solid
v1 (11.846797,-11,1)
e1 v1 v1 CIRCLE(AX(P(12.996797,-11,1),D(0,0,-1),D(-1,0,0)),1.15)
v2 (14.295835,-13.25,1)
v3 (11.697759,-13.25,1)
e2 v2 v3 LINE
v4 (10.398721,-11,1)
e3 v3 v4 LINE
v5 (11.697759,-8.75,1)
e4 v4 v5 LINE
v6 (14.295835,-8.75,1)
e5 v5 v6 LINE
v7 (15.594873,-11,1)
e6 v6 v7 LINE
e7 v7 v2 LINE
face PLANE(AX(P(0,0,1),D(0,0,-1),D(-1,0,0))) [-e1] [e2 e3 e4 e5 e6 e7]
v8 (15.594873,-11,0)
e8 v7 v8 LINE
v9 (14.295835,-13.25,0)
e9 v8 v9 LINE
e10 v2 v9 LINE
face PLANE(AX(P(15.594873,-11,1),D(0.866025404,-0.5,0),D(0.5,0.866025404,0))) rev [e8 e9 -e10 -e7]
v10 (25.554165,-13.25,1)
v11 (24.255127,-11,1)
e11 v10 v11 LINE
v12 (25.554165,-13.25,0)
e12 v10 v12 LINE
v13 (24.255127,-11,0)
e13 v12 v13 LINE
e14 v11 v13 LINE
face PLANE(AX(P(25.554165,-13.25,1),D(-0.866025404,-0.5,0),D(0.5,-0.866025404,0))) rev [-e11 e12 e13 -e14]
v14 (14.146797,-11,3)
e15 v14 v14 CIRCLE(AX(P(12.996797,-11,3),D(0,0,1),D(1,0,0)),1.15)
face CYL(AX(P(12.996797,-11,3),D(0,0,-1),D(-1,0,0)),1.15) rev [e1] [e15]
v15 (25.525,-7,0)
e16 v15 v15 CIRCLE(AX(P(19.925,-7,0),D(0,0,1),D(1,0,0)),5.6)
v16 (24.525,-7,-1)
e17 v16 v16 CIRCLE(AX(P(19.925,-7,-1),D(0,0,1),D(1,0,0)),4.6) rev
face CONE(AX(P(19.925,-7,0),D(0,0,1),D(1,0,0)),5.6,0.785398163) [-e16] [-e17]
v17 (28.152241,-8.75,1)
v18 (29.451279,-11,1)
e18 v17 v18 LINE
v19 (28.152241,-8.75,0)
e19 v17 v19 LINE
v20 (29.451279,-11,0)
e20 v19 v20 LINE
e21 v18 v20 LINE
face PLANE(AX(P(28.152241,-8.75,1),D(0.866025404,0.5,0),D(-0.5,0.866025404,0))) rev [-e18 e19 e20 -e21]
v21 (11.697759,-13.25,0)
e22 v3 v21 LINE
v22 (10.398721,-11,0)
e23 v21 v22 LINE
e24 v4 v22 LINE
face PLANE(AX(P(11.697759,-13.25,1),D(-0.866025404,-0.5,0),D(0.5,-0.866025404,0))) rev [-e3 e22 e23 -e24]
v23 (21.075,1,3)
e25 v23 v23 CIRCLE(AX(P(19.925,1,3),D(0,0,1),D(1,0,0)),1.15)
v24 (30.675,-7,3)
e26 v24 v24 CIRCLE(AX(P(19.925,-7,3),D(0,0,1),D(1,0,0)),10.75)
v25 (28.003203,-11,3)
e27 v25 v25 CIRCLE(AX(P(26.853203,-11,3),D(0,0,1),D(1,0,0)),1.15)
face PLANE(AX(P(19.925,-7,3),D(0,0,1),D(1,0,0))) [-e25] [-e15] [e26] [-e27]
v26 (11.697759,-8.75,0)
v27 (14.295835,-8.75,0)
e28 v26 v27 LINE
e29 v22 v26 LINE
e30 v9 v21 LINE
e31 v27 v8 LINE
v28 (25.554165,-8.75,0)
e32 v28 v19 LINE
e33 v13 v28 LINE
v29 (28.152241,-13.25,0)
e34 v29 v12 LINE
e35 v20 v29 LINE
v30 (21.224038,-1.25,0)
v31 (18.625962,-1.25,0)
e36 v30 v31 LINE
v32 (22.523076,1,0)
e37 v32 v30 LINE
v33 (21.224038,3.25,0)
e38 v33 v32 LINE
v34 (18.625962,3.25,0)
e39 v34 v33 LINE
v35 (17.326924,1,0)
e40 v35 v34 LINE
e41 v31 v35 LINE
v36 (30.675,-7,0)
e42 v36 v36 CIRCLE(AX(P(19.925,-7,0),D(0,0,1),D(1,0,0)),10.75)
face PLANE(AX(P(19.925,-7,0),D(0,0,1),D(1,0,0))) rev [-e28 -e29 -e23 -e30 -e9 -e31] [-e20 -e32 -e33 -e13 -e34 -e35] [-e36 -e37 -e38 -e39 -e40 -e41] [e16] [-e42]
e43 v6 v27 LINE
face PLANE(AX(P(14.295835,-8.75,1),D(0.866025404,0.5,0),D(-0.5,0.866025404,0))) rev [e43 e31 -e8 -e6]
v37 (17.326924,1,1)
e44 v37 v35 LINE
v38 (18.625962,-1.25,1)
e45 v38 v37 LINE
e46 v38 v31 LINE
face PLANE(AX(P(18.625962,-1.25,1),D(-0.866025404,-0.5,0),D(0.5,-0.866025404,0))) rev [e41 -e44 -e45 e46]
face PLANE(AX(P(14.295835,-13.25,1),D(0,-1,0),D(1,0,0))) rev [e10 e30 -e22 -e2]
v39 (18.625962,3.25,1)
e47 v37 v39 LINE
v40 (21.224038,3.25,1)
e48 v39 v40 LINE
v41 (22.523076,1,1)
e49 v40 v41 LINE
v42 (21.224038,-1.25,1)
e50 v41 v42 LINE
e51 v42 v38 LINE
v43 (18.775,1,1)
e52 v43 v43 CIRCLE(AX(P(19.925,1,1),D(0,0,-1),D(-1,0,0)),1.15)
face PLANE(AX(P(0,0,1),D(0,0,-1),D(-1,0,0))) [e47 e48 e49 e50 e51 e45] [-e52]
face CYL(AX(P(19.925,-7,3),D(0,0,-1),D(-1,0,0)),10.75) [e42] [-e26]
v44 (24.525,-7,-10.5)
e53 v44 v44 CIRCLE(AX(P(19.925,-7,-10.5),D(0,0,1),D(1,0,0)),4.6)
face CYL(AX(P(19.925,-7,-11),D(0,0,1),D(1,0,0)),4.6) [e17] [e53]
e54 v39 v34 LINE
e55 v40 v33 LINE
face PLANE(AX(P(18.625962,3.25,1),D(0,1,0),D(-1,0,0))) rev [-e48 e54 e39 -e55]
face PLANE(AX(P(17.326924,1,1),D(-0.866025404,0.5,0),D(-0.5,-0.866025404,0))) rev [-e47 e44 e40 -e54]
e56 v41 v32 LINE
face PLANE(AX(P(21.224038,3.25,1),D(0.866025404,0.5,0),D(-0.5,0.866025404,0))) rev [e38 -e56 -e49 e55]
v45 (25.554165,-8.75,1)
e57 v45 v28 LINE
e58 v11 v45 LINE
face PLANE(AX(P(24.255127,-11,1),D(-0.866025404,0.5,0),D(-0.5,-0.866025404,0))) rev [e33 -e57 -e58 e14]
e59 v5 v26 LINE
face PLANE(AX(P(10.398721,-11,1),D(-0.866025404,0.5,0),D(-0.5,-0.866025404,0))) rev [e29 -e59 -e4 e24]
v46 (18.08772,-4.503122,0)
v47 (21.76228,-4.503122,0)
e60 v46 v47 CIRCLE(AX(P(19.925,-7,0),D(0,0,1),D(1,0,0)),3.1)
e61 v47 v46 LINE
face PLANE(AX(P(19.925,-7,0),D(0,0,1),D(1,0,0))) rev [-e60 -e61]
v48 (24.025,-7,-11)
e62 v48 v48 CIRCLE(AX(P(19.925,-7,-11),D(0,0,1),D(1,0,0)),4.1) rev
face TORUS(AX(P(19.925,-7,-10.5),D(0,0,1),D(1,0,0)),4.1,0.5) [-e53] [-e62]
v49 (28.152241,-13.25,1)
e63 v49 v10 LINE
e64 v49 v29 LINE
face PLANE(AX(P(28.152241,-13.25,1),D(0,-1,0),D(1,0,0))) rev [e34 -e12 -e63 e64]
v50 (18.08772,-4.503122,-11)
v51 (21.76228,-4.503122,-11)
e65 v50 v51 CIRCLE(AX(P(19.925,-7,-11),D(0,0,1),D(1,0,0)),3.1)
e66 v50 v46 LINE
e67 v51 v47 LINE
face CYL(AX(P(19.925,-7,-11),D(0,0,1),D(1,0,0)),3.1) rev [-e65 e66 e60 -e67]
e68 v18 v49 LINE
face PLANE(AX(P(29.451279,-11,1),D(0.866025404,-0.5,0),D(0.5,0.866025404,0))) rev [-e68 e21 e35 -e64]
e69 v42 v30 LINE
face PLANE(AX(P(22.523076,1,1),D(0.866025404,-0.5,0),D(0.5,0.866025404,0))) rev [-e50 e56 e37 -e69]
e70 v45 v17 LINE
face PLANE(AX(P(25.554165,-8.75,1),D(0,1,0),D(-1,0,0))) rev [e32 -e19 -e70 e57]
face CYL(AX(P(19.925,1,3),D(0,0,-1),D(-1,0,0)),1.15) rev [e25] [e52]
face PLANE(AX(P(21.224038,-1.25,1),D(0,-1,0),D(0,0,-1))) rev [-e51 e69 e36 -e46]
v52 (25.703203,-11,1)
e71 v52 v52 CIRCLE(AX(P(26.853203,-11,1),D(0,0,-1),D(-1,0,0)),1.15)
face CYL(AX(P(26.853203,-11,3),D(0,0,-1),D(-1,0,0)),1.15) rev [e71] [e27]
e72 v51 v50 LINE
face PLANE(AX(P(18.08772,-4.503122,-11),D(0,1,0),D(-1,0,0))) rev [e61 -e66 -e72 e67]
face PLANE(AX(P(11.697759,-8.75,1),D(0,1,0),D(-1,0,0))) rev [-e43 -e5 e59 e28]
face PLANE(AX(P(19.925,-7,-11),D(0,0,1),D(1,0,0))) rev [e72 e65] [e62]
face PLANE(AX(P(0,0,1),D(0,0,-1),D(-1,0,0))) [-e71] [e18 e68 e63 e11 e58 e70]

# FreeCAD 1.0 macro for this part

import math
import FreeCAD as App
import Part
import Sketcher
Q = App.Units.Quantity


def edges_at(feature, points):
    """Names of the edges that pass closest to the given points."""
    edges = feature.Shape.Edges
    near = lambda p: min(range(len(edges)), key=lambda i: edges[i].distToShape(Part.Vertex(*p))[0])
    return sorted({f"Edge{near(p) + 1}" for p in points})


def add_polygon(sketch, points):
    """Adds a closed chain of lines whose ends are joined by coincident constraints."""
    first, n = sketch.GeometryCount, len(points)
    for a, b in zip(points, points[1:] + points[:1]):
        sketch.addGeometry(Part.LineSegment(App.Vector(*a, 0), App.Vector(*b, 0)), False)
    for i in range(n):
        sketch.addConstraint(Sketcher.Constraint("Coincident", first + i, 2, first + (i + 1) % n, 1))

doc = App.newDocument("Part")
body = doc.addObject("PartDesign::Body", "Body")

# Sketch on XY plane
sketch1 = body.newObject("Sketcher::SketchObject", "Sketch")
sketch1.AttachmentSupport = (doc.getObject("XY_Plane"), [""])
sketch1.MapMode = "FlatFace"
sketch1.addGeometry([
    Part.Circle(App.Vector(19.9, -7, 0), App.Vector(0, 0, 1), 4.6),
    Part.ArcOfCircle(Part.Circle(App.Vector(19.9, -7, 0), App.Vector(0, 0, 1), 3.1), math.radians(126), math.radians(414)),
    Part.LineSegment(App.Vector(18.1, -4.5, 0), App.Vector(21.8, -4.5, 0)),
], False)
sketch1.addConstraint([
    Sketcher.Constraint("Coincident", 1, 1, 2, 1),
    Sketcher.Constraint("Coincident", 2, 2, 1, 2),
    Sketcher.Constraint("Horizontal", 2),
    Sketcher.Constraint("Coincident", 1, 3, 0, 3),
    Sketcher.Constraint("Diameter", 0, Q("9.2 mm")),
    Sketcher.Constraint("Radius", 1, Q("3.1 mm")),
    Sketcher.Constraint("DistanceY", 0, 3, -1, 1, Q("7 mm")),
    Sketcher.Constraint("DistanceX", -1, 1, 0, 3, Q("19.925 mm")),
    Sketcher.Constraint("DistanceX", 2, 1, 2, 2, Q("3.67456 mm")),
])
pad1 = body.newObject("PartDesign::Pad", "Pad")
pad1.Profile = sketch1
pad1.Length = 11
pad1.Reversed = True

# Sketch on XY plane
sketch2 = body.newObject("Sketcher::SketchObject", "Sketch001")
sketch2.AttachmentSupport = (doc.getObject("XY_Plane"), [""])
sketch2.MapMode = "FlatFace"
sketch2.addGeometry([
    Part.Circle(App.Vector(19.9, -7, 0), App.Vector(0, 0, 1), 10.8),
    Part.Circle(App.Vector(13, -11, 0), App.Vector(0, 0, 1), 1.1),
    Part.Circle(App.Vector(26.9, -11, 0), App.Vector(0, 0, 1), 1.1),
    Part.Circle(App.Vector(19.9, 1, 0), App.Vector(0, 0, 1), 1.1),
], False)
sketch2.addConstraint([
    Sketcher.Constraint("Equal", 1, 2),
    Sketcher.Constraint("Equal", 2, 3),
    Sketcher.Constraint("Horizontal", 1, 3, 2, 3),
    Sketcher.Constraint("Vertical", 0, 3, 3, 3),
    Sketcher.Constraint("Diameter", 0, Q("21.5 mm")),
    Sketcher.Constraint("Diameter", 1, Q("2.3 mm")),
    Sketcher.Constraint("DistanceY", 0, 3, -1, 1, Q("7 mm")),
    Sketcher.Constraint("DistanceY", 1, 3, -1, 1, Q("11 mm")),
    Sketcher.Constraint("DistanceY", -1, 1, 3, 3, Q("1 mm")),
    Sketcher.Constraint("DistanceX", -1, 1, 0, 3, Q("19.925 mm")),
    Sketcher.Constraint("DistanceX", -1, 1, 1, 3, Q("12.996797 mm")),
    Sketcher.Constraint("DistanceX", -1, 1, 2, 3, Q("26.853203 mm")),
])
pad2 = body.newObject("PartDesign::Pad", "Pad001")
pad2.Profile = sketch2
pad2.Length = 3

# Sketch on XY plane
sketch3 = body.newObject("Sketcher::SketchObject", "Sketch002")
sketch3.AttachmentSupport = (doc.getObject("XY_Plane"), [""])
sketch3.MapMode = "FlatFace"
add_polygon(sketch3, [(25.6, -8.8), (28.2, -8.8), (29.5, -11), (28.2, -13.2), (25.6, -13.2), (24.3, -11)])  # lines 0-5
add_polygon(sketch3, [(22.5, 1), (21.2, -1.2), (18.6, -1.2), (17.3, 1), (18.6, 3.2), (21.2, 3.2)])  # lines 6-11
add_polygon(sketch3, [(14.3, -8.8), (15.6, -11), (14.3, -13.2), (11.7, -13.2), (10.4, -11), (11.7, -8.8)])  # lines 12-17
sketch3.addConstraint([
    Sketcher.Constraint("Horizontal", 0),
    Sketcher.Constraint("Horizontal", 3),
    Sketcher.Constraint("Horizontal", 7),
    Sketcher.Constraint("Horizontal", 10),
    Sketcher.Constraint("Horizontal", 14),
    Sketcher.Constraint("Horizontal", 17),
    Sketcher.Constraint("Parallel", 1, 4),
    Sketcher.Constraint("Parallel", 2, 5),
    Sketcher.Constraint("Parallel", 5, 6),
    Sketcher.Constraint("Parallel", 4, 8),
    Sketcher.Constraint("Parallel", 6, 9),
    Sketcher.Constraint("Parallel", 8, 11),
    Sketcher.Constraint("Parallel", 11, 12),
    Sketcher.Constraint("Parallel", 9, 13),
    Sketcher.Constraint("Parallel", 12, 15),
    Sketcher.Constraint("Parallel", 13, 16),
    Sketcher.Constraint("Horizontal", 1, 2, 4, 2),
    Sketcher.Constraint("Horizontal", 8, 2, 11, 2),
    Sketcher.Constraint("Horizontal", 4, 2, 12, 2),
    Sketcher.Constraint("Horizontal", 3, 2, 13, 2),
    Sketcher.Constraint("Horizontal", 12, 2, 15, 2),
    Sketcher.Constraint("Horizontal", 5, 2, 16, 2),
    Sketcher.Constraint("Vertical", 0, 2, 2, 2),
    Sketcher.Constraint("Vertical", 3, 2, 5, 2),
    Sketcher.Constraint("Vertical", 7, 2, 9, 2),
    Sketcher.Constraint("Equal", 3, 7),
    Sketcher.Constraint("Equal", 10, 14),
    Sketcher.Constraint("Equal", 5, 6),
    Sketcher.Constraint("Angle", 1, Q("-60 deg")),
    Sketcher.Constraint("DistanceY", 1, 2, -1, 1, Q("11 mm")),
    Sketcher.Constraint("DistanceY", -1, 1, 8, 2, Q("1 mm")),
    Sketcher.Constraint("DistanceY", 2, 2, 0, 2, Q("4.5 mm")),
    Sketcher.Constraint("DistanceX", 0, 1, 0, 2, Q("2.598076 mm")),
    Sketcher.Constraint("DistanceX", -1, 1, 0, 2, Q("28.152241 mm")),
    Sketcher.Constraint("DistanceX", -1, 1, 6, 2, Q("21.224038 mm")),
    Sketcher.Constraint("DistanceX", -1, 1, 14, 2, Q("11.697759 mm")),
])
pocket1 = body.newObject("PartDesign::Pocket", "Pocket")
pocket1.Profile = sketch3
pocket1.Length = 1
pocket1.Reversed = True
doc.recompute()

chamfer = body.newObject("PartDesign::Chamfer", "Chamfer")
chamfer.Base = (pocket1, edges_at(pocket1, [(15.325, -7, 0)]))
chamfer.Size = 1
doc.recompute()

fillet = body.newObject("PartDesign::Fillet", "Fillet")
fillet.Base = (chamfer, edges_at(chamfer, [(15.325, -7, -11)]))
fillet.Radius = 0.5

doc.recompute()
